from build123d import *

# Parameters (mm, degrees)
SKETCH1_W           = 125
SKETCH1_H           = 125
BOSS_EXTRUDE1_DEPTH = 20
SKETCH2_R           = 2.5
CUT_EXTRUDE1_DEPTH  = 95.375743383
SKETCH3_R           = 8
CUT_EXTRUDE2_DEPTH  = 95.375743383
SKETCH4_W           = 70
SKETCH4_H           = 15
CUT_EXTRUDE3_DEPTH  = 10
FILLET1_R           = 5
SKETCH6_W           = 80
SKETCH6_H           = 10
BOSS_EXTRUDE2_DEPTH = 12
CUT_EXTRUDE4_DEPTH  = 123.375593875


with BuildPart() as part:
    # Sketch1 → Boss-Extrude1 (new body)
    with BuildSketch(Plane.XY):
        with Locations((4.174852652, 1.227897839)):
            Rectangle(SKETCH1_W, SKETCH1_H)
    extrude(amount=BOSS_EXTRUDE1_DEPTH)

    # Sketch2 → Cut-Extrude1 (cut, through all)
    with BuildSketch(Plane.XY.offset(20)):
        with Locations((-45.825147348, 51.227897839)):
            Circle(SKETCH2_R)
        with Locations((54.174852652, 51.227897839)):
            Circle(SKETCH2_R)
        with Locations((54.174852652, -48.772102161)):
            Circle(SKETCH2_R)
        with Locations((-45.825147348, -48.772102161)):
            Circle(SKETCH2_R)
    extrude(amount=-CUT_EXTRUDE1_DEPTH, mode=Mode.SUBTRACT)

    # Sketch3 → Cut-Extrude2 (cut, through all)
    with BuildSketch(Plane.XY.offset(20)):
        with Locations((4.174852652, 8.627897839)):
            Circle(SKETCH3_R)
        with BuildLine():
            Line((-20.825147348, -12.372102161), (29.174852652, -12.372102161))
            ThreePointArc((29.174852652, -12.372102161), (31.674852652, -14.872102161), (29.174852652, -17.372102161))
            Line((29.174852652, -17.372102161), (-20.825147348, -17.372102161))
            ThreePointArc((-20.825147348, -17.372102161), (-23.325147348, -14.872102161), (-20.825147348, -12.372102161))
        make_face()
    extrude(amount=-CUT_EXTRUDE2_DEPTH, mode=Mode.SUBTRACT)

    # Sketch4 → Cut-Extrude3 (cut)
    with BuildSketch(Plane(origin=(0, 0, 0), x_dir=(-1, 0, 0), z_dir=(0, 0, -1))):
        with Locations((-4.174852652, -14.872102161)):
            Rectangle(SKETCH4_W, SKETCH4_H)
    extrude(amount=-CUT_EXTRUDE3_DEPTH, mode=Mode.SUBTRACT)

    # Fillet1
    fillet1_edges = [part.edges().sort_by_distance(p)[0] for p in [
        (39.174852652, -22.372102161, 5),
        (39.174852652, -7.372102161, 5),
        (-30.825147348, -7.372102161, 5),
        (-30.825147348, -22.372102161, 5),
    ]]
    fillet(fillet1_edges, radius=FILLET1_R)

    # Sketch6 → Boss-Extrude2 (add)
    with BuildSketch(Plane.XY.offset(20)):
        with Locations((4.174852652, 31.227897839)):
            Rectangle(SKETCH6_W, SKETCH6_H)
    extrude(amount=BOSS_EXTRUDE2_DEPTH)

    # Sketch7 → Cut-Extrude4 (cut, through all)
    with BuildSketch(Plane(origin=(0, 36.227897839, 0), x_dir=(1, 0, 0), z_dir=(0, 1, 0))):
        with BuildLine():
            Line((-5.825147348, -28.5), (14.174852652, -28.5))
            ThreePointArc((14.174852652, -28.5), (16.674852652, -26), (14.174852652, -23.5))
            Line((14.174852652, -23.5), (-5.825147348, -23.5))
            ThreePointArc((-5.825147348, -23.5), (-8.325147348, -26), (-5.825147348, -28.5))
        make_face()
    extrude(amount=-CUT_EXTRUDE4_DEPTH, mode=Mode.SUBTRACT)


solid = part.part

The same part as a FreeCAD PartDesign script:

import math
import FreeCAD as App
import Part
import Sketcher


def edges_at(feature, points):
    """Names of the edges that pass closest to the given points."""
    edges = feature.Shape.Edges
    near = lambda p: min(range(len(edges)), key=lambda i: edges[i].distToShape(Part.Vertex(*p))[0])
    return sorted({f"Edge{near(p) + 1}" for p in points})


def add_polygon(sketch, points):
    """Adds a closed chain of lines whose ends are joined by coincident constraints."""
    first, n = sketch.GeometryCount, len(points)
    for a, b in zip(points, points[1:] + points[:1]):
        sketch.addGeometry(Part.LineSegment(App.Vector(*a, 0), App.Vector(*b, 0)), False)
    for i in range(n):
        sketch.addConstraint(Sketcher.Constraint("Coincident", first + i, 2, first + (i + 1) % n, 1))

doc = App.newDocument("Part")
body = doc.addObject("PartDesign::Body", "Body")

sketch1 = body.newObject("Sketcher::SketchObject", "Sketch")
sketch1.AttachmentSupport = (doc.getObject("XY_Plane"), [""])
sketch1.MapMode = "FlatFace"
add_polygon(sketch1, [(-58.325147, 63.727898), (-58.325147, -61.272102), (66.674853, -61.272102), (66.674853, 63.727898)])
sketch1.addConstraint(Sketcher.Constraint("Vertical", 0))
sketch1.addConstraint(Sketcher.Constraint("Horizontal", 1))
sketch1.addConstraint(Sketcher.Constraint("Vertical", 2))
sketch1.addConstraint(Sketcher.Constraint("Horizontal", 3))
sketch1.addConstraint(Sketcher.Constraint("Equal", 3, 0))
sketch1.addConstraint(Sketcher.Constraint("DistanceX", 1, 1, 1, 2, 125.0))
sketch1.addConstraint(Sketcher.Constraint("DistanceX", 0, 2, -1, 1, 58.325147))
sketch1.addConstraint(Sketcher.Constraint("DistanceY", 0, 2, -1, 1, 61.272102))
pad1 = body.newObject("PartDesign::Pad", "Pad")
pad1.Profile = sketch1
pad1.Length = 20

sketch2 = body.newObject("Sketcher::SketchObject", "Sketch001")
sketch2.AttachmentSupport = (doc.getObject("XY_Plane"), [""])
sketch2.MapMode = "FlatFace"
sketch2.AttachmentOffset = App.Placement(App.Vector(0, 0, 20), App.Rotation())
sketch2.addGeometry(Part.Circle(App.Vector(-45.825147, 51.227898, 0), App.Vector(0, 0, 1), 2.5), False)
sketch2.addGeometry(Part.Circle(App.Vector(54.174853, 51.227898, 0), App.Vector(0, 0, 1), 2.5), False)
sketch2.addGeometry(Part.Circle(App.Vector(54.174853, -48.772102, 0), App.Vector(0, 0, 1), 2.5), False)
sketch2.addGeometry(Part.Circle(App.Vector(-45.825147, -48.772102, 0), App.Vector(0, 0, 1), 2.5), False)
sketch2.addConstraint(Sketcher.Constraint("Equal", 0, 1))
sketch2.addConstraint(Sketcher.Constraint("Equal", 1, 2))
sketch2.addConstraint(Sketcher.Constraint("Equal", 2, 3))
sketch2.addConstraint(Sketcher.Constraint("Horizontal", 0, 3, 1, 3))
sketch2.addConstraint(Sketcher.Constraint("Horizontal", 2, 3, 3, 3))
sketch2.addConstraint(Sketcher.Constraint("Vertical", 1, 3, 2, 3))
sketch2.addConstraint(Sketcher.Constraint("Vertical", 0, 3, 3, 3))
sketch2.addConstraint(Sketcher.Constraint("Diameter", 0, 5.0))
sketch2.addConstraint(Sketcher.Constraint("DistanceX", 0, 3, 1, 3, 100.0))
sketch2.addConstraint(Sketcher.Constraint("DistanceY", 2, 3, 1, 3, 100.0))
sketch2.addConstraint(Sketcher.Constraint("DistanceX", 0, 3, -1, 1, 45.825147))
sketch2.addConstraint(Sketcher.Constraint("DistanceY", -1, 1, 0, 3, 51.227898))
pocket1 = body.newObject("PartDesign::Pocket", "Pocket")
pocket1.Profile = sketch2
pocket1.Type = "ThroughAll"

sketch3 = body.newObject("Sketcher::SketchObject", "Sketch002")
sketch3.AttachmentSupport = (doc.getObject("XY_Plane"), [""])
sketch3.MapMode = "FlatFace"
sketch3.AttachmentOffset = App.Placement(App.Vector(0, 0, 20), App.Rotation())
sketch3.addGeometry(Part.Circle(App.Vector(4.174853, 8.627898, 0), App.Vector(0, 0, 1), 8), False)
sketch3.addGeometry(Part.LineSegment(App.Vector(29.174853, -12.372102, 0), App.Vector(-20.825147, -12.372102, 0)), False)
sketch3.addGeometry(Part.ArcOfCircle(Part.Circle(App.Vector(-20.825147, -14.872102, 0), App.Vector(0, 0, 1), 2.5), math.radians(90), math.radians(270)), False)
sketch3.addGeometry(Part.LineSegment(App.Vector(-20.825147, -17.372102, 0), App.Vector(29.174853, -17.372102, 0)), False)
sketch3.addGeometry(Part.ArcOfCircle(Part.Circle(App.Vector(29.174853, -14.872102, 0), App.Vector(0, 0, 1), 2.5), math.radians(-90), math.radians(90)), False)
sketch3.addConstraint(Sketcher.Constraint("Tangent", 1, 2, 2, 1))
sketch3.addConstraint(Sketcher.Constraint("Tangent", 2, 2, 3, 1))
sketch3.addConstraint(Sketcher.Constraint("Tangent", 3, 2, 4, 1))
sketch3.addConstraint(Sketcher.Constraint("Tangent", 4, 2, 1, 1))
sketch3.addConstraint(Sketcher.Constraint("Horizontal", 1))
sketch3.addConstraint(Sketcher.Constraint("Horizontal", 3))
sketch3.addConstraint(Sketcher.Constraint("Diameter", 0, 16.0))
sketch3.addConstraint(Sketcher.Constraint("Radius", 2, 2.5))
sketch3.addConstraint(Sketcher.Constraint("DistanceX", 1, 2, 1, 1, 50.0))
sketch3.addConstraint(Sketcher.Constraint("DistanceX", 2, 3, 0, 3, 25.0))
sketch3.addConstraint(Sketcher.Constraint("DistanceY", 1, 2, 0, 3, 21.0))
sketch3.addConstraint(Sketcher.Constraint("DistanceX", -1, 1, 0, 3, 4.174853))
sketch3.addConstraint(Sketcher.Constraint("DistanceY", -1, 1, 0, 3, 8.627898))
pocket2 = body.newObject("PartDesign::Pocket", "Pocket001")
pocket2.Profile = sketch3
pocket2.Type = "ThroughAll"

sketch4 = body.newObject("Sketcher::SketchObject", "Sketch003")
sketch4.AttachmentSupport = (doc.getObject("XY_Plane"), [""])
sketch4.MapMode = "FlatFace"
add_polygon(sketch4, [(39.174853, -7.372102), (39.174853, -22.372102), (-30.825147, -22.372102), (-30.825147, -7.372102)])
sketch4.addConstraint(Sketcher.Constraint("Vertical", 0))
sketch4.addConstraint(Sketcher.Constraint("Horizontal", 1))
sketch4.addConstraint(Sketcher.Constraint("Vertical", 2))
sketch4.addConstraint(Sketcher.Constraint("Horizontal", 3))
sketch4.addConstraint(Sketcher.Constraint("DistanceX", 1, 2, 1, 1, 70.0))
sketch4.addConstraint(Sketcher.Constraint("DistanceY", 0, 2, 0, 1, 15.0))
sketch4.addConstraint(Sketcher.Constraint("DistanceX", -1, 1, 0, 2, 39.174853))
sketch4.addConstraint(Sketcher.Constraint("DistanceY", 0, 2, -1, 1, 22.372102))
pocket3 = body.newObject("PartDesign::Pocket", "Pocket002")
pocket3.Profile = sketch4
pocket3.Length = 10
pocket3.Reversed = True
doc.recompute()

fillet = body.newObject("PartDesign::Fillet", "Fillet")
fillet.Base = (pocket3, edges_at(pocket3, [
    (39.175, -22.372, 5),
    (39.175, -7.372, 5),
    (-30.825, -7.372, 5),
    (-30.825, -22.372, 5),
]))
fillet.Radius = 5

sketch5 = body.newObject("Sketcher::SketchObject", "Sketch004")
sketch5.AttachmentSupport = (doc.getObject("XY_Plane"), [""])
sketch5.MapMode = "FlatFace"
sketch5.AttachmentOffset = App.Placement(App.Vector(0, 0, 20), App.Rotation())
add_polygon(sketch5, [(-35.825147, 36.227898), (-35.825147, 26.227898), (44.174853, 26.227898), (44.174853, 36.227898)])
sketch5.addConstraint(Sketcher.Constraint("Vertical", 0))
sketch5.addConstraint(Sketcher.Constraint("Horizontal", 1))
sketch5.addConstraint(Sketcher.Constraint("Vertical", 2))
sketch5.addConstraint(Sketcher.Constraint("Horizontal", 3))
sketch5.addConstraint(Sketcher.Constraint("DistanceX", 1, 1, 1, 2, 80.0))
sketch5.addConstraint(Sketcher.Constraint("DistanceY", 0, 2, 0, 1, 10.0))
sketch5.addConstraint(Sketcher.Constraint("DistanceX", 0, 2, -1, 1, 35.825147))
sketch5.addConstraint(Sketcher.Constraint("DistanceY", -1, 1, 0, 2, 26.227898))
pad2 = body.newObject("PartDesign::Pad", "Pad001")
pad2.Profile = sketch5
pad2.Length = 12

sketch6 = body.newObject("Sketcher::SketchObject", "Sketch005")
sketch6.AttachmentSupport = (doc.getObject("XZ_Plane"), [""])
sketch6.MapMode = "FlatFace"
sketch6.AttachmentOffset = App.Placement(App.Vector(0, 0, -36.227898), App.Rotation())
sketch6.addGeometry(Part.LineSegment(App.Vector(-5.825147, 28.5, 0), App.Vector(14.174853, 28.5, 0)), False)
sketch6.addGeometry(Part.ArcOfCircle(Part.Circle(App.Vector(14.174853, 26, 0), App.Vector(0, 0, 1), 2.5), math.radians(-90), math.radians(90)), False)
sketch6.addGeometry(Part.LineSegment(App.Vector(14.174853, 23.5, 0), App.Vector(-5.825147, 23.5, 0)), False)
sketch6.addGeometry(Part.ArcOfCircle(Part.Circle(App.Vector(-5.825147, 26, 0), App.Vector(0, 0, 1), 2.5), math.radians(90), math.radians(270)), False)
sketch6.addConstraint(Sketcher.Constraint("Tangent", 0, 2, 1, 2))
sketch6.addConstraint(Sketcher.Constraint("Tangent", 1, 1, 2, 1))
sketch6.addConstraint(Sketcher.Constraint("Tangent", 2, 2, 3, 2))
sketch6.addConstraint(Sketcher.Constraint("Tangent", 3, 1, 0, 1))
sketch6.addConstraint(Sketcher.Constraint("Horizontal", 0))
sketch6.addConstraint(Sketcher.Constraint("Horizontal", 2))
sketch6.addConstraint(Sketcher.Constraint("Radius", 1, 2.5))
sketch6.addConstraint(Sketcher.Constraint("DistanceX", 0, 1, 0, 2, 20.0))
sketch6.addConstraint(Sketcher.Constraint("DistanceY", -1, 1, 1, 3, 26.0))
sketch6.addConstraint(Sketcher.Constraint("DistanceX", -1, 1, 1, 3, 14.174853))
pocket4 = body.newObject("PartDesign::Pocket", "Pocket003")
pocket4.Profile = sketch6
pocket4.Type = "ThroughAll"
pocket4.Reversed = True

doc.recompute()
